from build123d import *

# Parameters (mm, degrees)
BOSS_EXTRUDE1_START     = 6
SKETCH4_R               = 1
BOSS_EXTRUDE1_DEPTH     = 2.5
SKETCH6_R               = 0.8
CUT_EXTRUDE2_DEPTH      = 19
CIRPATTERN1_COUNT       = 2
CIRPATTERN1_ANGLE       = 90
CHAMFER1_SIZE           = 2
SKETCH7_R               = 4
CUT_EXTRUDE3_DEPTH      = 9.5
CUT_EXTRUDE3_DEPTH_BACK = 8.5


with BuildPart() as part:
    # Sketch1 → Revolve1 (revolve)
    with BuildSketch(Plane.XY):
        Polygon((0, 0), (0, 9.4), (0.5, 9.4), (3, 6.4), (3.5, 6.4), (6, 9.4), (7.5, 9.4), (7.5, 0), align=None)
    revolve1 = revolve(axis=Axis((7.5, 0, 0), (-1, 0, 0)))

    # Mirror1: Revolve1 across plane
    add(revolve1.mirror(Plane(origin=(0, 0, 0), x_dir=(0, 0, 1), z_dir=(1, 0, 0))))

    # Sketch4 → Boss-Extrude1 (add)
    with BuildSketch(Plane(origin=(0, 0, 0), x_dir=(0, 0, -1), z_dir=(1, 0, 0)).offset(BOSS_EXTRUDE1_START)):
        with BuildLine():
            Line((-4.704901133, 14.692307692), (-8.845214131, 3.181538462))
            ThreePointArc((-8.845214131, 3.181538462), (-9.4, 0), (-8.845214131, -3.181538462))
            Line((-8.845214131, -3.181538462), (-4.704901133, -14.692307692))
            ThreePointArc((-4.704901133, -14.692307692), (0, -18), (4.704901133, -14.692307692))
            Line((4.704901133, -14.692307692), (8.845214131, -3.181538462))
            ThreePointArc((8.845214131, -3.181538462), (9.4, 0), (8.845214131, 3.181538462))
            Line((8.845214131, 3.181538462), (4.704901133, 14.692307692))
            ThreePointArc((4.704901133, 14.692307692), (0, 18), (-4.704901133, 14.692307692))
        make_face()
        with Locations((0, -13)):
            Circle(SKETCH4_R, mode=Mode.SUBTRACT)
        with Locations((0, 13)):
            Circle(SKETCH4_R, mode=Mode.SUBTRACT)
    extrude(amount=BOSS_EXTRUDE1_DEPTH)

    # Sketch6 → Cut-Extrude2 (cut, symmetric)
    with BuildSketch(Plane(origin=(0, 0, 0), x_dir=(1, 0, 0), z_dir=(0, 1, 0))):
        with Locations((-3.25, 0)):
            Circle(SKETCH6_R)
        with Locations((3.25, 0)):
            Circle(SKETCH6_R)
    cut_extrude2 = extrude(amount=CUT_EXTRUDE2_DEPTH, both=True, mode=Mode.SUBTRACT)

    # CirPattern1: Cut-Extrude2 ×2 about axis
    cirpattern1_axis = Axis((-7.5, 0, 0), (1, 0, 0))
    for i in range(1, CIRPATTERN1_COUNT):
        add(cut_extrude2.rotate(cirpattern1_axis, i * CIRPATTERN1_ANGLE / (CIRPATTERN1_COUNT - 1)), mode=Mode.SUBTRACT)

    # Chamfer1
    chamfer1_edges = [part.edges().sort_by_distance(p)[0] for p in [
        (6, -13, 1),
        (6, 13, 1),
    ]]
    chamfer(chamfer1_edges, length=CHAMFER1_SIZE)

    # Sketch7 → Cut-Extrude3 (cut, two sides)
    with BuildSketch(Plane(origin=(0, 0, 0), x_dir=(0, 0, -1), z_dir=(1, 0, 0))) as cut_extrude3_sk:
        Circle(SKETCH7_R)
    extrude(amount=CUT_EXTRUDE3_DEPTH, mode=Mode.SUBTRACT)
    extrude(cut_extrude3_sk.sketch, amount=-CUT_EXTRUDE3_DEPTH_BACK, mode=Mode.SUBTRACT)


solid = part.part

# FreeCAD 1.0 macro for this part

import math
import FreeCAD as App
import Part
import Sketcher
from FreeCAD import Vector
Q = App.Units.Quantity


def edges_at(feature, points):
    """Names of the edges that pass closest to the given points."""
    edges = feature.Shape.Edges
    near = lambda p: min(range(len(edges)), key=lambda i: edges[i].distToShape(Part.Vertex(*p))[0])
    return sorted({f"Edge{near(p) + 1}" for p in points})


def add_polygon(sketch, points):
    """Adds a closed chain of lines whose ends are joined by coincident constraints."""
    first, n = sketch.GeometryCount, len(points)
    for a, b in zip(points, points[1:] + points[:1]):
        sketch.addGeometry(Part.LineSegment(App.Vector(*a, 0), App.Vector(*b, 0)), False)
    for i in range(n):
        sketch.addConstraint(Sketcher.Constraint("Coincident", first + i, 2, first + (i + 1) % n, 1))

doc = App.newDocument("Part")
params = doc.addObject("Spreadsheet::Sheet", "Params")
for row, (alias, value) in enumerate([
    ("sketch1_width", "7.5 mm"),
    ("sketch1_width2", "1.5 mm"),
    ("sketch1_width3", "0.5 mm"),
    ("sketch1_height", "9.4 mm"),
    ("revolution_angle", "360 deg"),
    ("sketch2_diameter", "2 mm"),
    ("sketch2_radius", "5 mm"),
    ("sketch2_radius2", "9.4 mm"),
    ("pad1_length", "2.5 mm"),
    ("sketch3_diameter", "1.6 mm"),
    ("pocket1_length", "38 mm"),
    ("chamfer_size", "2 mm"),
    ("sketch4_diameter", "8 mm"),
], start=1):
    params.set(f"A{row}", alias)
    params.set(f"B{row}", "=" + value)
    params.setAlias(f"B{row}", alias)

body = doc.addObject("PartDesign::Body", "Body")

sketch1 = doc.addObject("Sketcher::SketchObject", "Sketch")
body.addObject(sketch1)
sketch1.AttachmentSupport = (doc.XY_Plane, [""])
sketch1.MapMode = "FlatFace"
add_polygon(sketch1, [(0, 9.4), (0, 0), (7.5, 0), (7.5, 9.4), (6, 9.4), (3.5, 6.4), (3, 6.4), (0.5, 9.4)])
sketch1.addConstraint(Sketcher.Constraint("Vertical", 0))
sketch1.addConstraint(Sketcher.Constraint("Horizontal", 1))
sketch1.addConstraint(Sketcher.Constraint("Vertical", 2))
sketch1.addConstraint(Sketcher.Constraint("Horizontal", 3))
sketch1.addConstraint(Sketcher.Constraint("Horizontal", 5))
sketch1.addConstraint(Sketcher.Constraint("Horizontal", 7))
sketch1.addConstraint(Sketcher.Constraint("Coincident", 0, 2, -1, 1))
sketch1.addConstraint(Sketcher.Constraint("Horizontal", 3, 2, 6, 2))
sketch1.addConstraint(Sketcher.Constraint("Equal", 5, 7))
sketch1.addConstraint(Sketcher.Constraint("Equal", 4, 6))
sketch1.addConstraint(Sketcher.Constraint("DistanceX", 1, 1, 1, 2, Q("7.5 mm")))
sketch1.addConstraint(Sketcher.Constraint("DistanceX", 3, 2, 3, 1, Q("1.5 mm")))
sketch1.addConstraint(Sketcher.Constraint("DistanceX", 5, 2, 5, 1, Q("0.5 mm")))
sketch1.addConstraint(Sketcher.Constraint("DistanceY", 0, 2, 0, 1, Q("9.4 mm")))
sketch1.addConstraint(Sketcher.Constraint("DistanceY", 4, 2, 3, 2, Q("3 mm")))
sketch1.setExpression("Constraints[18]", "Params.sketch1_width")
sketch1.setExpression("Constraints[19]", "Params.sketch1_width2")
sketch1.setExpression("Constraints[20]", "Params.sketch1_width3")
sketch1.setExpression("Constraints[21]", "Params.sketch1_height")
revolution = doc.addObject("PartDesign::Revolution", "Revolution")
body.addObject(revolution)
revolution.Profile = sketch1
revolution.ReferenceAxis = (sketch1, ["H_Axis"])
revolution.setExpression("Angle", "Params.revolution_angle")
doc.recompute()

mirrored = doc.addObject("PartDesign::Mirrored", "Mirrored")
body.addObject(mirrored)
mirrored.Originals = [revolution]
mirrored.MirrorPlane = (doc.YZ_Plane, [""])
body.Tip = mirrored

sketch2 = doc.addObject("Sketcher::SketchObject", "Sketch001")
body.addObject(sketch2)
sketch2.AttachmentSupport = (doc.YZ_Plane, [""])
sketch2.MapMode = "FlatFace"
sketch2.AttachmentOffset = App.Placement(Vector(0, 0, 6), App.Rotation())
sketch2.addGeometry(Part.LineSegment(Vector(14.692308, 4.704901, 0), Vector(3.181538, 8.845214, 0)), False)
sketch2.addGeometry(Part.ArcOfCircle(Part.Circle(Vector(0, 0, 0), Vector(0, 0, 1), 9.4), math.radians(70.21683), math.radians(109.78317)), False)
sketch2.addGeometry(Part.LineSegment(Vector(-3.181538, 8.845214, 0), Vector(-14.692308, 4.704901, 0)), False)
sketch2.addGeometry(Part.ArcOfCircle(Part.Circle(Vector(-13, 0, 0), Vector(0, 0, 1), 5), math.radians(109.78317), math.radians(250.21683)), False)
sketch2.addGeometry(Part.LineSegment(Vector(-14.692308, -4.704901, 0), Vector(-3.181538, -8.845214, 0)), False)
sketch2.addGeometry(Part.ArcOfCircle(Part.Circle(Vector(0, 0, 0), Vector(0, 0, 1), 9.4), math.radians(-109.78317), math.radians(-70.21683)), False)
sketch2.addGeometry(Part.LineSegment(Vector(3.181538, -8.845214, 0), Vector(14.692308, -4.704901, 0)), False)
sketch2.addGeometry(Part.ArcOfCircle(Part.Circle(Vector(13, 0, 0), Vector(0, 0, 1), 5), math.radians(-70.21683), math.radians(70.21683)), False)
sketch2.addGeometry(Part.Circle(Vector(-13, 0, 0), Vector(0, 0, 1), 1), False)
sketch2.addGeometry(Part.Circle(Vector(13, 0, 0), Vector(0, 0, 1), 1), False)
sketch2.addConstraint(Sketcher.Constraint("Tangent", 0, 2, 1, 1))
sketch2.addConstraint(Sketcher.Constraint("Tangent", 1, 2, 2, 1))
sketch2.addConstraint(Sketcher.Constraint("Tangent", 2, 2, 3, 1))
sketch2.addConstraint(Sketcher.Constraint("Tangent", 3, 2, 4, 1))
sketch2.addConstraint(Sketcher.Constraint("Tangent", 4, 2, 5, 1))
sketch2.addConstraint(Sketcher.Constraint("Tangent", 5, 2, 6, 1))
sketch2.addConstraint(Sketcher.Constraint("Tangent", 6, 2, 7, 1))
sketch2.addConstraint(Sketcher.Constraint("Tangent", 7, 2, 0, 1))
sketch2.addConstraint(Sketcher.Constraint("Coincident", 1, 3, -1, 1))
sketch2.addConstraint(Sketcher.Constraint("Coincident", 5, 3, -1, 1))
sketch2.addConstraint(Sketcher.Constraint("Coincident", 8, 3, 3, 3))
sketch2.addConstraint(Sketcher.Constraint("Coincident", 9, 3, 7, 3))
sketch2.addConstraint(Sketcher.Constraint("Equal", 1, 5))
sketch2.addConstraint(Sketcher.Constraint("Equal", 3, 7))
sketch2.addConstraint(Sketcher.Constraint("Equal", 8, 9))
sketch2.addConstraint(Sketcher.Constraint("Symmetric", 3, 3, 7, 3, -1, 1))
sketch2.addConstraint(Sketcher.Constraint("PointOnObject", 3, 3, -1))
sketch2.addConstraint(Sketcher.Constraint("Diameter", 8, Q("2 mm")))
sketch2.addConstraint(Sketcher.Constraint("Radius", 3, Q("5 mm")))
sketch2.addConstraint(Sketcher.Constraint("Radius", 1, Q("9.4 mm")))
sketch2.addConstraint(Sketcher.Constraint("DistanceX", 3, 3, -1, 1, Q("13 mm")))
sketch2.setExpression("Constraints[17]", "Params.sketch2_diameter")
sketch2.setExpression("Constraints[18]", "Params.sketch2_radius")
sketch2.setExpression("Constraints[19]", "Params.sketch2_radius2")
pad1 = doc.addObject("PartDesign::Pad", "Pad")
body.addObject(pad1)
pad1.Profile = sketch2
pad1.setExpression("Length", "Params.pad1_length")

sketch3 = doc.addObject("Sketcher::SketchObject", "Sketch002")
body.addObject(sketch3)
sketch3.AttachmentSupport = (doc.XZ_Plane, [""])
sketch3.MapMode = "FlatFace"
sketch3.addGeometry(Part.Circle(Vector(-3.25, 0, 0), Vector(0, 0, 1), 0.8), False)
sketch3.addGeometry(Part.Circle(Vector(3.25, 0, 0), Vector(0, 0, 1), 0.8), False)
sketch3.addConstraint(Sketcher.Constraint("Equal", 0, 1))
sketch3.addConstraint(Sketcher.Constraint("Symmetric", 0, 3, 1, 3, -1, 1))
sketch3.addConstraint(Sketcher.Constraint("PointOnObject", 0, 3, -1))
sketch3.addConstraint(Sketcher.Constraint("Diameter", 0, Q("1.6 mm")))
sketch3.addConstraint(Sketcher.Constraint("DistanceX", 0, 3, 1, 3, Q("6.5 mm")))
sketch3.setExpression("Constraints[3]", "Params.sketch3_diameter")
pocket1 = doc.addObject("PartDesign::Pocket", "Pocket")
body.addObject(pocket1)
pocket1.Profile = sketch3
pocket1.setExpression("Length", "Params.pocket1_length")
pocket1.Midplane = True
doc.recompute()

polarpattern = doc.addObject("PartDesign::PolarPattern", "PolarPattern")
body.addObject(polarpattern)
polarpattern.Originals = [pocket1]
polarpattern.Axis = (doc.X_Axis, [""])
polarpattern.Angle = 90
polarpattern.Occurrences = 2
body.Tip = polarpattern
doc.recompute()

chamfer = doc.addObject("PartDesign::Chamfer", "Chamfer")
body.addObject(chamfer)
chamfer.Base = (polarpattern, edges_at(polarpattern, [(6, -13, 1), (6, 13, 1)]))
chamfer.setExpression("Size", "Params.chamfer_size")

sketch4 = doc.addObject("Sketcher::SketchObject", "Sketch003")
body.addObject(sketch4)
sketch4.AttachmentSupport = (doc.YZ_Plane, [""])
sketch4.MapMode = "FlatFace"
sketch4.addGeometry(Part.Circle(Vector(0, 0, 0), Vector(0, 0, 1), 4), False)
sketch4.addConstraint(Sketcher.Constraint("Coincident", 0, 3, -1, 1))
sketch4.addConstraint(Sketcher.Constraint("Diameter", 0, Q("8 mm")))
sketch4.setExpression("Constraints[1]", "Params.sketch4_diameter")
pocket2 = doc.addObject("PartDesign::Pocket", "Pocket001")
body.addObject(pocket2)
pocket2.Profile = sketch4
pocket2.Type = "ThroughAll"
pocket2.Midplane = True

doc.recompute()
